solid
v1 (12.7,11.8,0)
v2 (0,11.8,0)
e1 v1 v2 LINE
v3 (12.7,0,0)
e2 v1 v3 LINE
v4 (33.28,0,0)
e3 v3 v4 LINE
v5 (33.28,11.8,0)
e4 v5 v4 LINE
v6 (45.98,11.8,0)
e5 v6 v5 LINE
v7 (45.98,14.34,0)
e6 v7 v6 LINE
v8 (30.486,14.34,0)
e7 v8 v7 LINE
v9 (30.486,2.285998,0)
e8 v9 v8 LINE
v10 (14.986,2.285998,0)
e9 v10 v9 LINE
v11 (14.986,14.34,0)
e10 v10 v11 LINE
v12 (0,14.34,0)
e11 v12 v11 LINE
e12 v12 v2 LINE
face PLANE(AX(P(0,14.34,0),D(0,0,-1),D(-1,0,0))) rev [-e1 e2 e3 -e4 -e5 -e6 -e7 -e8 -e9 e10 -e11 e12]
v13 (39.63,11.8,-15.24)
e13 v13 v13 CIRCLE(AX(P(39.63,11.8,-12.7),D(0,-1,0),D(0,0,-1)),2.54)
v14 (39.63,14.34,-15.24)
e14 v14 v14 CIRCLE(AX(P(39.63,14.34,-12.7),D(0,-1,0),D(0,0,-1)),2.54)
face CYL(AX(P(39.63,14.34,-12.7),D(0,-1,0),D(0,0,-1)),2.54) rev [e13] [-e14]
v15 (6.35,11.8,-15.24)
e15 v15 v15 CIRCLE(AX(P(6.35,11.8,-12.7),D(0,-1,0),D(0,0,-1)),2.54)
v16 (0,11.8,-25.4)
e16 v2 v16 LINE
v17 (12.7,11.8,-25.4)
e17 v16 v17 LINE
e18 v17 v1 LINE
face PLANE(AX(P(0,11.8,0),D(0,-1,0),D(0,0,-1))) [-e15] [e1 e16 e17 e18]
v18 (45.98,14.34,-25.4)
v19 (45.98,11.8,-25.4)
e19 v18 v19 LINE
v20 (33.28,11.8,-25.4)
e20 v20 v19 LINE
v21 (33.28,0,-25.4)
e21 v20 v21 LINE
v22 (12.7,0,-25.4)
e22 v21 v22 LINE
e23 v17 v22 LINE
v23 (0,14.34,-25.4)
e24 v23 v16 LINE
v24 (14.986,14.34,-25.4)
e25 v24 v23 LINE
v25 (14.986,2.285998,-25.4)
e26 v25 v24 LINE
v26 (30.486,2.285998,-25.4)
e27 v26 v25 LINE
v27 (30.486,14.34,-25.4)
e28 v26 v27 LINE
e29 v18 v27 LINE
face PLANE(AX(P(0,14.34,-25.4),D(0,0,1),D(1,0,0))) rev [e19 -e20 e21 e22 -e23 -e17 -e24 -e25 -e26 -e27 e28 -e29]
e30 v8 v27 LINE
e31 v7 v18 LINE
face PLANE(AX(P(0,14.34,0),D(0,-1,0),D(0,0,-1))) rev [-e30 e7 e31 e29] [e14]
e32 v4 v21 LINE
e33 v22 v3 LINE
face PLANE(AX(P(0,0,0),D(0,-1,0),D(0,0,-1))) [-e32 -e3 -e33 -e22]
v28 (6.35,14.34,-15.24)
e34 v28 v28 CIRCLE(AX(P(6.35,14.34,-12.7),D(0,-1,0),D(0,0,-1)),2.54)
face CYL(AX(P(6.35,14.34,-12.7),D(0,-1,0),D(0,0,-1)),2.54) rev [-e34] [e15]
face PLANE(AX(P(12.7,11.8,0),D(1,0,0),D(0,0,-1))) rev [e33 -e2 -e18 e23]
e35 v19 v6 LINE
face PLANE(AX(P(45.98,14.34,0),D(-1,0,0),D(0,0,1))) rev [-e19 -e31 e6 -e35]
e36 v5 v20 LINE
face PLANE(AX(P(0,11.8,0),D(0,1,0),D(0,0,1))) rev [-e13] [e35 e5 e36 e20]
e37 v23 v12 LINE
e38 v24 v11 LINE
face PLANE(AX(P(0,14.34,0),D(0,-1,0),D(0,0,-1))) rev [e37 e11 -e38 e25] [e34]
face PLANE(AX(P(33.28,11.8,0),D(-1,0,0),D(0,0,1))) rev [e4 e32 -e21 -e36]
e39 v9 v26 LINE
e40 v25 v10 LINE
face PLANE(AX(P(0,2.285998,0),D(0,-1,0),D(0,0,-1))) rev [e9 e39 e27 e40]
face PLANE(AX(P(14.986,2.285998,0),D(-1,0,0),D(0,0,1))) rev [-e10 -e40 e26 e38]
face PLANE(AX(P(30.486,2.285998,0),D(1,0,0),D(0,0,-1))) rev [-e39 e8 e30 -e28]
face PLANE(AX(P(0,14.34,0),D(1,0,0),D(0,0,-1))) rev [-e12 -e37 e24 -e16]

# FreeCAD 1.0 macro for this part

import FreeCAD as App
import Part
import Sketcher

V = App.Vector
Q = App.Units.Quantity

doc = App.newDocument("Part")
body = doc.addObject("PartDesign::Body", "Body")

# Sketch on XZ plane
sketch1 = body.newObject("Sketcher::SketchObject", "Sketch")
sketch1.AttachmentSupport = (doc.getObject("XZ_Plane"), [""])
sketch1.MapMode = "FlatFace"
sketch1.addGeometry([
    Part.LineSegment(V(0, -25.4, 0), V(0, 0, 0)),
    Part.LineSegment(V(0, 0, 0), V(45.98, 0, 0)),
    Part.LineSegment(V(45.98, 0, 0), V(45.98, -25.4, 0)),
    Part.LineSegment(V(45.98, -25.4, 0), V(0, -25.4, 0)),
], False)
sketch1.addConstraint([
    Sketcher.Constraint("Coincident", 0, 2, 1, 1),
    Sketcher.Constraint("Coincident", 1, 2, 2, 1),
    Sketcher.Constraint("Coincident", 2, 2, 3, 1),
    Sketcher.Constraint("Coincident", 3, 2, 0, 1),
    Sketcher.Constraint("Vertical", 0),
    Sketcher.Constraint("Horizontal", 1),
    Sketcher.Constraint("Vertical", 2),
    Sketcher.Constraint("Horizontal", 3),
    Sketcher.Constraint("Coincident", 0, 2, -1, 1),
    Sketcher.Constraint("DistanceY", 0, 1, 0, 2, Q("1 in")),
    Sketcher.Constraint("DistanceX", 1, 1, 1, 2, Q("45.98 mm")),
])
pad1 = body.newObject("PartDesign::Pad", "Pad")
pad1.Profile = sketch1
pad1.Length = 14.34
pad1.Reversed = True

# Sketch on XZ plane
sketch2 = body.newObject("Sketcher::SketchObject", "Sketch001")
sketch2.AttachmentSupport = (doc.getObject("XZ_Plane"), [""])
sketch2.MapMode = "FlatFace"
sketch2.AttachmentOffset = App.Placement(V(0, 0, -14.34), App.Rotation())
sketch2.addGeometry([
    Part.LineSegment(V(14.986, -25.4, 0), V(14.986, 0, 0)),
    Part.LineSegment(V(14.986, 0, 0), V(30.486, 0, 0)),
    Part.LineSegment(V(30.486, 0, 0), V(30.486, -25.4, 0)),
    Part.LineSegment(V(30.486, -25.4, 0), V(14.986, -25.4, 0)),
], False)
sketch2.addConstraint([
    Sketcher.Constraint("Coincident", 0, 2, 1, 1),
    Sketcher.Constraint("Coincident", 1, 2, 2, 1),
    Sketcher.Constraint("Coincident", 2, 2, 3, 1),
    Sketcher.Constraint("Coincident", 3, 2, 0, 1),
    Sketcher.Constraint("Vertical", 0),
    Sketcher.Constraint("Horizontal", 1),
    Sketcher.Constraint("Vertical", 2),
    Sketcher.Constraint("Horizontal", 3),
    Sketcher.Constraint("PointOnObject", 0, 2, -1),
    Sketcher.Constraint("DistanceY", 0, 1, 0, 2, Q("1 in")),
    Sketcher.Constraint("DistanceX", -1, 1, 0, 2, Q("0.59 in")),
    Sketcher.Constraint("DistanceX", 1, 1, 1, 2, Q("15.5 mm")),
])
pocket1 = body.newObject("PartDesign::Pocket", "Pocket")
pocket1.Profile = sketch2
pocket1.Length = 12.054002
pocket1.Reversed = True

# Sketch on XZ plane
sketch3 = body.newObject("Sketcher::SketchObject", "Sketch002")
sketch3.AttachmentSupport = (doc.getObject("XZ_Plane"), [""])
sketch3.MapMode = "FlatFace"
sketch3.addGeometry([
    Part.LineSegment(V(12.7, -25.4, 0), V(12.7, 0, 0)),
    Part.LineSegment(V(12.7, 0, 0), V(0, 0, 0)),
    Part.LineSegment(V(0, 0, 0), V(0, -25.4, 0)),
    Part.LineSegment(V(0, -25.4, 0), V(12.7, -25.4, 0)),
], False)
sketch3.addConstraint([
    Sketcher.Constraint("Coincident", 0, 2, 1, 1),
    Sketcher.Constraint("Coincident", 1, 2, 2, 1),
    Sketcher.Constraint("Coincident", 2, 2, 3, 1),
    Sketcher.Constraint("Coincident", 3, 2, 0, 1),
    Sketcher.Constraint("Vertical", 0),
    Sketcher.Constraint("Horizontal", 1),
    Sketcher.Constraint("Vertical", 2),
    Sketcher.Constraint("Horizontal", 3),
    Sketcher.Constraint("Coincident", 1, 2, -1, 1),
    Sketcher.Constraint("DistanceY", 0, 1, 0, 2, Q("1 in")),
    Sketcher.Constraint("DistanceX", 1, 2, 1, 1, Q("0.5 in")),
])
pocket2 = body.newObject("PartDesign::Pocket", "Pocket001")
pocket2.Profile = sketch3
pocket2.Length = 11.8

# Sketch on XZ plane
sketch4 = body.newObject("Sketcher::SketchObject", "Sketch003")
sketch4.AttachmentSupport = (doc.getObject("XZ_Plane"), [""])
sketch4.MapMode = "FlatFace"
sketch4.addGeometry([
    Part.LineSegment(V(45.98, -25.4, 0), V(45.98, 0, 0)),
    Part.LineSegment(V(45.98, 0, 0), V(33.28, 0, 0)),
    Part.LineSegment(V(33.28, 0, 0), V(33.28, -25.4, 0)),
    Part.LineSegment(V(33.28, -25.4, 0), V(45.98, -25.4, 0)),
], False)
sketch4.addConstraint([
    Sketcher.Constraint("Coincident", 0, 2, 1, 1),
    Sketcher.Constraint("Coincident", 1, 2, 2, 1),
    Sketcher.Constraint("Coincident", 2, 2, 3, 1),
    Sketcher.Constraint("Coincident", 3, 2, 0, 1),
    Sketcher.Constraint("Vertical", 0),
    Sketcher.Constraint("Horizontal", 1),
    Sketcher.Constraint("Vertical", 2),
    Sketcher.Constraint("Horizontal", 3),
    Sketcher.Constraint("PointOnObject", 0, 2, -1),
    Sketcher.Constraint("DistanceY", 0, 1, 0, 2, Q("1 in")),
    Sketcher.Constraint("DistanceX", 1, 2, 1, 1, Q("0.5 in")),
    Sketcher.Constraint("DistanceX", -1, 1, 0, 2, Q("45.98 mm")),
])
pocket3 = body.newObject("PartDesign::Pocket", "Pocket002")
pocket3.Profile = sketch4
pocket3.Length = 11.8

# Sketch on XZ plane
sketch5 = body.newObject("Sketcher::SketchObject", "Sketch004")
sketch5.AttachmentSupport = (doc.getObject("XZ_Plane"), [""])
sketch5.MapMode = "FlatFace"
sketch5.AttachmentOffset = App.Placement(V(0, 0, -11.8), App.Rotation())
sketch5.addGeometry(Part.Circle(V(6.35, -12.7, 0), V(0, 0, 1), 2.54), False)
sketch5.addConstraint([
    Sketcher.Constraint("Diameter", 0, Q("0.2 in")),
    Sketcher.Constraint("DistanceY", 0, 3, -1, 1, Q("0.5 in")),
    Sketcher.Constraint("DistanceX", -1, 1, 0, 3, Q("0.25 in")),
])
pocket4 = body.newObject("PartDesign::Pocket", "Pocket003")
pocket4.Profile = sketch5
pocket4.Length = Q("0.1 in")

# Sketch on XZ plane
sketch6 = body.newObject("Sketcher::SketchObject", "Sketch005")
sketch6.AttachmentSupport = (doc.getObject("XZ_Plane"), [""])
sketch6.MapMode = "FlatFace"
sketch6.AttachmentOffset = App.Placement(V(0, 0, -11.8), App.Rotation())
sketch6.addGeometry(Part.Circle(V(39.63, -12.7, 0), V(0, 0, 1), 2.54), False)
sketch6.addConstraint([
    Sketcher.Constraint("Diameter", 0, Q("0.2 in")),
    Sketcher.Constraint("DistanceY", 0, 3, -1, 1, Q("0.5 in")),
    Sketcher.Constraint("DistanceX", -1, 1, 0, 3, Q("39.63 mm")),
])
pocket5 = body.newObject("PartDesign::Pocket", "Pocket004")
pocket5.Profile = sketch6
pocket5.Length = Q("0.1 in")

doc.recompute()
